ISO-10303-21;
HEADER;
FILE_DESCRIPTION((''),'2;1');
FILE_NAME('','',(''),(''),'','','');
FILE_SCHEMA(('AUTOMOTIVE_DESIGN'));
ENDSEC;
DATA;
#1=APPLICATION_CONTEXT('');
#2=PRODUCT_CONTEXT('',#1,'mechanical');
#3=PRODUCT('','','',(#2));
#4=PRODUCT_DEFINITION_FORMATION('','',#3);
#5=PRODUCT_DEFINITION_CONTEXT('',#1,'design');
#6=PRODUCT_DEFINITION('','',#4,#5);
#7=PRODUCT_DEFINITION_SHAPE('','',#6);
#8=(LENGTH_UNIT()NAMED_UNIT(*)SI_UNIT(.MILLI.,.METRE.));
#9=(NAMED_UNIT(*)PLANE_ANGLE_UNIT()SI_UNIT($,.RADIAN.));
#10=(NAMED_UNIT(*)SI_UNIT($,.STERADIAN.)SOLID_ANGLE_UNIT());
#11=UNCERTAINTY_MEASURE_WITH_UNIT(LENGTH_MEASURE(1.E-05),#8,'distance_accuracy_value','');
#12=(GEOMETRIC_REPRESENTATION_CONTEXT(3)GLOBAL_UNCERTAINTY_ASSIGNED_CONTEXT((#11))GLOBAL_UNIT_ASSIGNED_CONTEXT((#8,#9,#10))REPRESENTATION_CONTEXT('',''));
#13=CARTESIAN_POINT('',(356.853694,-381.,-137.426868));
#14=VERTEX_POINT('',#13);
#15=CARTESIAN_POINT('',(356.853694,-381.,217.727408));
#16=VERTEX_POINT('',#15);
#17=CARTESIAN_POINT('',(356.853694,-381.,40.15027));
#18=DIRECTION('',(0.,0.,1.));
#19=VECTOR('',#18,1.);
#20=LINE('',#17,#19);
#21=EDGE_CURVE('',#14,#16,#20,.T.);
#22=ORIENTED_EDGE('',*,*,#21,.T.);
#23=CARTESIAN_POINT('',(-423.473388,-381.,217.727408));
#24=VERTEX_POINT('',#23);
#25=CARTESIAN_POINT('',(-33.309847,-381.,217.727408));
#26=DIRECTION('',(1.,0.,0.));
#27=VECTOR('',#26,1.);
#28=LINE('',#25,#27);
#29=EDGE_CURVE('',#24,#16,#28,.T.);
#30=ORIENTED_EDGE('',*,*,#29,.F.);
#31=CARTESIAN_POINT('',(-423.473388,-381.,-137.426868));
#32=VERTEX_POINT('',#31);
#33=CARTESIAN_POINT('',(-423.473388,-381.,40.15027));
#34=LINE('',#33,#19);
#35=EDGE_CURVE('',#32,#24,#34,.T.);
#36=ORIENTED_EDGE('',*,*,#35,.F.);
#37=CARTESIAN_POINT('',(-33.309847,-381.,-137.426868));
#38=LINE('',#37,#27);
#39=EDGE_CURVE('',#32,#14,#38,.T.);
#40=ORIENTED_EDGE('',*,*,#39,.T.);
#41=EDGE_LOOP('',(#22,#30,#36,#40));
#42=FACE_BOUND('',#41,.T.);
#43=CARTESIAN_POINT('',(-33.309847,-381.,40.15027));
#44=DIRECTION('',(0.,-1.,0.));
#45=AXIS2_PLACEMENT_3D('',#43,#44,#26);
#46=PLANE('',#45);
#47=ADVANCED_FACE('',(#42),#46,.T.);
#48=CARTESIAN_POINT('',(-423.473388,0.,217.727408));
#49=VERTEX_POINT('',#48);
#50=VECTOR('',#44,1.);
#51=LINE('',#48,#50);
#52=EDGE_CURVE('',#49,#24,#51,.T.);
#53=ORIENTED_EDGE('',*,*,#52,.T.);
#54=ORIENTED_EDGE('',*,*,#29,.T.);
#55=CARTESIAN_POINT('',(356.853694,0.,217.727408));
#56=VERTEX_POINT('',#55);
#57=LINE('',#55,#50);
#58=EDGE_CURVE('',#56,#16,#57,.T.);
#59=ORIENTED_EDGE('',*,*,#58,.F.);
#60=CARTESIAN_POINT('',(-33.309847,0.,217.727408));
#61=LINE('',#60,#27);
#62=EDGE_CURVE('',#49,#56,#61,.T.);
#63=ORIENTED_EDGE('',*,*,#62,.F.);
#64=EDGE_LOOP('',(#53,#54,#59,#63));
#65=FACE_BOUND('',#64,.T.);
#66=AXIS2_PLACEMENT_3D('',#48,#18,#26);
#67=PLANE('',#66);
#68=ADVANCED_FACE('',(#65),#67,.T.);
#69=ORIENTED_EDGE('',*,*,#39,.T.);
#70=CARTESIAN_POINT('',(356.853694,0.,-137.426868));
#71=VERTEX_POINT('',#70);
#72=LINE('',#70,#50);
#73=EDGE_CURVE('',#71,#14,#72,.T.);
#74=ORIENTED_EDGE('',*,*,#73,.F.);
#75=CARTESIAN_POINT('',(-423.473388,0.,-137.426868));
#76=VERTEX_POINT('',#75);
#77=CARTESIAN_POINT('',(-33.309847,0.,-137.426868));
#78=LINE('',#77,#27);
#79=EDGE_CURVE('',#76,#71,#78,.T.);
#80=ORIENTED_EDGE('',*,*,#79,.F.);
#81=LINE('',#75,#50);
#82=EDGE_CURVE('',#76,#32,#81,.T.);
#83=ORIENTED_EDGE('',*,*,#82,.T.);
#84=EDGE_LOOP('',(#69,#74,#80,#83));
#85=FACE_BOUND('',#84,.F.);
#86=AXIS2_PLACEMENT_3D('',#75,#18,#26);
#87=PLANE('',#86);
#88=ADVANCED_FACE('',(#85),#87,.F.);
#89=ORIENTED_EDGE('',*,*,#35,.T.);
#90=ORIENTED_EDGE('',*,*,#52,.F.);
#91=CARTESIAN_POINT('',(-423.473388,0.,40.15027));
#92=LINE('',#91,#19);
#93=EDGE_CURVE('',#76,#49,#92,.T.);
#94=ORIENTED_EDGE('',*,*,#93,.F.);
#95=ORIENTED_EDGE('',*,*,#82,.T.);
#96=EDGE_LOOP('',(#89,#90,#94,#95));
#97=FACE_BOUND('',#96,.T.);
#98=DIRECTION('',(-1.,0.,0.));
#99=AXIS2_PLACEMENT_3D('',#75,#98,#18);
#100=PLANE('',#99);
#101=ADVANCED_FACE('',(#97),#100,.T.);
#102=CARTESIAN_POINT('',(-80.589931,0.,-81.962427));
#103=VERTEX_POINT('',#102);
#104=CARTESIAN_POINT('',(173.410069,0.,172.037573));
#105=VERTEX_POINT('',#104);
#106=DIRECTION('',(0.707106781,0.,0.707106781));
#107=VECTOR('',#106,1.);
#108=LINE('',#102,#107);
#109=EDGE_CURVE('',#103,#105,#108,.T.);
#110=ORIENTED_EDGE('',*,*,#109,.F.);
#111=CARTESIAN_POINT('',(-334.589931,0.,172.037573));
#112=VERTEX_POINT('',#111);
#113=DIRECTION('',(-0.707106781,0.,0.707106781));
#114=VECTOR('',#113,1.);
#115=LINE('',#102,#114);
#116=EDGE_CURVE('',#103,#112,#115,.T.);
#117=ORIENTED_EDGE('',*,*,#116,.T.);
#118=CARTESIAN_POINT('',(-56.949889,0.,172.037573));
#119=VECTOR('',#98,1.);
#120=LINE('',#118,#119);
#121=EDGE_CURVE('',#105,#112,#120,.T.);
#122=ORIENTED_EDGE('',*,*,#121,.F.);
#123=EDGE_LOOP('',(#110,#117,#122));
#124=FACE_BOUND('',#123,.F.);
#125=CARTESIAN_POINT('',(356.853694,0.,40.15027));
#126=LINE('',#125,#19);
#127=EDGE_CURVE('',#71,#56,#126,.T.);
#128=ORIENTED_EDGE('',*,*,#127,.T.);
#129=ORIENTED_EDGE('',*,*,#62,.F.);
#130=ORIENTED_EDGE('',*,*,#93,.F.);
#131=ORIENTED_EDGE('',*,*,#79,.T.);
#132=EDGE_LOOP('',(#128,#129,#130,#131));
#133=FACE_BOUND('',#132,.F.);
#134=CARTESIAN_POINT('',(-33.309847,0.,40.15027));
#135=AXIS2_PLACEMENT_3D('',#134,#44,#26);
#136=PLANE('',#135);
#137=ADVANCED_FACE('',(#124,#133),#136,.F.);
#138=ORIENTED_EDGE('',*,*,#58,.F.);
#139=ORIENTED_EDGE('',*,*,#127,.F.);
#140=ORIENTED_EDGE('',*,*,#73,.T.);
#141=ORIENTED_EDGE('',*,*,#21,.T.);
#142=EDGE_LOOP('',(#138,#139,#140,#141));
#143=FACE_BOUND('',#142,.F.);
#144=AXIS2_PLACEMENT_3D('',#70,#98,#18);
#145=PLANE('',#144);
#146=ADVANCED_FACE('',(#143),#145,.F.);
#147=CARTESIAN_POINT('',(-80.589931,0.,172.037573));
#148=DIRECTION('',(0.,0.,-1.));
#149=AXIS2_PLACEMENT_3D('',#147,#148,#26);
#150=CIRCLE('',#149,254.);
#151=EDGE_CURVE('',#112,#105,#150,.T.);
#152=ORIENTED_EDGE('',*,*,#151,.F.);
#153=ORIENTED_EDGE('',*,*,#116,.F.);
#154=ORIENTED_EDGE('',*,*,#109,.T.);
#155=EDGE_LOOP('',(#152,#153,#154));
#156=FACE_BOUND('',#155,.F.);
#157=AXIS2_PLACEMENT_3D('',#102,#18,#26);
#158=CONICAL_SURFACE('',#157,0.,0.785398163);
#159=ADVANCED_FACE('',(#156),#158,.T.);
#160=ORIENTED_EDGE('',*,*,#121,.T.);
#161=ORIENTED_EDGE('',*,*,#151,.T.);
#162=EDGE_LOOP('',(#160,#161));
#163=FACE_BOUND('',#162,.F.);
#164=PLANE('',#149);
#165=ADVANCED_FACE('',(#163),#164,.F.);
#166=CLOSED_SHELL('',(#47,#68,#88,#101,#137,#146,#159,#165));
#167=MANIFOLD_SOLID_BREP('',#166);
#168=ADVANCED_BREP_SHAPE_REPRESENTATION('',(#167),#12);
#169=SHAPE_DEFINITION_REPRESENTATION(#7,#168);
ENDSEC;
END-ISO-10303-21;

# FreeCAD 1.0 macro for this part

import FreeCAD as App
import Part
import Sketcher

V = App.Vector
Q = App.Units.Quantity


def add_polygon(sketch, points):
    """Adds a closed chain of lines whose ends are joined by coincident constraints."""
    first, n = sketch.GeometryCount, len(points)
    for a, b in zip(points, points[1:] + points[:1]):
        sketch.addGeometry(Part.LineSegment(App.Vector(*a, 0), App.Vector(*b, 0)), False)
    for i in range(n):
        sketch.addConstraint(Sketcher.Constraint("Coincident", first + i, 2, first + (i + 1) % n, 1))

doc = App.newDocument("Part")
body = doc.addObject("PartDesign::Body", "Body")

# Sketch on XZ plane
sketch1 = body.newObject("Sketcher::SketchObject", "Sketch")
sketch1.AttachmentSupport = (doc.getObject("XZ_Plane"), [""])
sketch1.MapMode = "FlatFace"
add_polygon(sketch1, [(173, 172), (-81, 172), (-81, -82)])  # lines 0-2
sketch1.addGeometry(Part.LineSegment(V(-81, 172, 0), V(-81, -82, 0)), True)  # axis
sketch1.addConstraint([
    Sketcher.Constraint("Horizontal", 0),
    Sketcher.Constraint("Vertical", 1),
    Sketcher.Constraint("Vertical", 3),
    Sketcher.Constraint("Coincident", 3, 1, 0, 2),
    Sketcher.Constraint("Equal", 0, 1),
    Sketcher.Constraint("Equal", 1, 3),
    Sketcher.Constraint("DistanceX", 0, 2, 0, 1, Q("10 in")),
    Sketcher.Constraint("DistanceX", 0, 2, -1, 1, Q("80.589931 mm")),
    Sketcher.Constraint("DistanceY", -1, 1, 0, 2, Q("172.037573 mm")),
])
revolution = body.newObject("PartDesign::Revolution", "Revolution")
revolution.Profile = sketch1
revolution.ReferenceAxis = (sketch1, ["Axis0"])
revolution.Angle = 360

# Sketch on XZ plane
sketch2 = body.newObject("Sketcher::SketchObject", "Sketch001")
sketch2.AttachmentSupport = (doc.getObject("XZ_Plane"), [""])
sketch2.MapMode = "FlatFace"
add_polygon(sketch2, [(-423, 218), (-423, -137), (357, -137), (357, 218)])  # lines 0-3
sketch2.addConstraint([
    Sketcher.Constraint("Vertical", 0),
    Sketcher.Constraint("Horizontal", 1),
    Sketcher.Constraint("Vertical", 2),
    Sketcher.Constraint("Horizontal", 3),
    Sketcher.Constraint("DistanceX", 1, 1, 1, 2, Q("780.327082 mm")),
    Sketcher.Constraint("DistanceY", 0, 2, 0, 1, Q("355.154276 mm")),
    Sketcher.Constraint("DistanceX", 0, 2, -1, 1, Q("423.473388 mm")),
    Sketcher.Constraint("DistanceY", 0, 2, -1, 1, Q("137.426868 mm")),
])
pad1 = body.newObject("PartDesign::Pad", "Pad")
pad1.Profile = sketch2
pad1.Length = Q("15 in")

doc.recompute()
